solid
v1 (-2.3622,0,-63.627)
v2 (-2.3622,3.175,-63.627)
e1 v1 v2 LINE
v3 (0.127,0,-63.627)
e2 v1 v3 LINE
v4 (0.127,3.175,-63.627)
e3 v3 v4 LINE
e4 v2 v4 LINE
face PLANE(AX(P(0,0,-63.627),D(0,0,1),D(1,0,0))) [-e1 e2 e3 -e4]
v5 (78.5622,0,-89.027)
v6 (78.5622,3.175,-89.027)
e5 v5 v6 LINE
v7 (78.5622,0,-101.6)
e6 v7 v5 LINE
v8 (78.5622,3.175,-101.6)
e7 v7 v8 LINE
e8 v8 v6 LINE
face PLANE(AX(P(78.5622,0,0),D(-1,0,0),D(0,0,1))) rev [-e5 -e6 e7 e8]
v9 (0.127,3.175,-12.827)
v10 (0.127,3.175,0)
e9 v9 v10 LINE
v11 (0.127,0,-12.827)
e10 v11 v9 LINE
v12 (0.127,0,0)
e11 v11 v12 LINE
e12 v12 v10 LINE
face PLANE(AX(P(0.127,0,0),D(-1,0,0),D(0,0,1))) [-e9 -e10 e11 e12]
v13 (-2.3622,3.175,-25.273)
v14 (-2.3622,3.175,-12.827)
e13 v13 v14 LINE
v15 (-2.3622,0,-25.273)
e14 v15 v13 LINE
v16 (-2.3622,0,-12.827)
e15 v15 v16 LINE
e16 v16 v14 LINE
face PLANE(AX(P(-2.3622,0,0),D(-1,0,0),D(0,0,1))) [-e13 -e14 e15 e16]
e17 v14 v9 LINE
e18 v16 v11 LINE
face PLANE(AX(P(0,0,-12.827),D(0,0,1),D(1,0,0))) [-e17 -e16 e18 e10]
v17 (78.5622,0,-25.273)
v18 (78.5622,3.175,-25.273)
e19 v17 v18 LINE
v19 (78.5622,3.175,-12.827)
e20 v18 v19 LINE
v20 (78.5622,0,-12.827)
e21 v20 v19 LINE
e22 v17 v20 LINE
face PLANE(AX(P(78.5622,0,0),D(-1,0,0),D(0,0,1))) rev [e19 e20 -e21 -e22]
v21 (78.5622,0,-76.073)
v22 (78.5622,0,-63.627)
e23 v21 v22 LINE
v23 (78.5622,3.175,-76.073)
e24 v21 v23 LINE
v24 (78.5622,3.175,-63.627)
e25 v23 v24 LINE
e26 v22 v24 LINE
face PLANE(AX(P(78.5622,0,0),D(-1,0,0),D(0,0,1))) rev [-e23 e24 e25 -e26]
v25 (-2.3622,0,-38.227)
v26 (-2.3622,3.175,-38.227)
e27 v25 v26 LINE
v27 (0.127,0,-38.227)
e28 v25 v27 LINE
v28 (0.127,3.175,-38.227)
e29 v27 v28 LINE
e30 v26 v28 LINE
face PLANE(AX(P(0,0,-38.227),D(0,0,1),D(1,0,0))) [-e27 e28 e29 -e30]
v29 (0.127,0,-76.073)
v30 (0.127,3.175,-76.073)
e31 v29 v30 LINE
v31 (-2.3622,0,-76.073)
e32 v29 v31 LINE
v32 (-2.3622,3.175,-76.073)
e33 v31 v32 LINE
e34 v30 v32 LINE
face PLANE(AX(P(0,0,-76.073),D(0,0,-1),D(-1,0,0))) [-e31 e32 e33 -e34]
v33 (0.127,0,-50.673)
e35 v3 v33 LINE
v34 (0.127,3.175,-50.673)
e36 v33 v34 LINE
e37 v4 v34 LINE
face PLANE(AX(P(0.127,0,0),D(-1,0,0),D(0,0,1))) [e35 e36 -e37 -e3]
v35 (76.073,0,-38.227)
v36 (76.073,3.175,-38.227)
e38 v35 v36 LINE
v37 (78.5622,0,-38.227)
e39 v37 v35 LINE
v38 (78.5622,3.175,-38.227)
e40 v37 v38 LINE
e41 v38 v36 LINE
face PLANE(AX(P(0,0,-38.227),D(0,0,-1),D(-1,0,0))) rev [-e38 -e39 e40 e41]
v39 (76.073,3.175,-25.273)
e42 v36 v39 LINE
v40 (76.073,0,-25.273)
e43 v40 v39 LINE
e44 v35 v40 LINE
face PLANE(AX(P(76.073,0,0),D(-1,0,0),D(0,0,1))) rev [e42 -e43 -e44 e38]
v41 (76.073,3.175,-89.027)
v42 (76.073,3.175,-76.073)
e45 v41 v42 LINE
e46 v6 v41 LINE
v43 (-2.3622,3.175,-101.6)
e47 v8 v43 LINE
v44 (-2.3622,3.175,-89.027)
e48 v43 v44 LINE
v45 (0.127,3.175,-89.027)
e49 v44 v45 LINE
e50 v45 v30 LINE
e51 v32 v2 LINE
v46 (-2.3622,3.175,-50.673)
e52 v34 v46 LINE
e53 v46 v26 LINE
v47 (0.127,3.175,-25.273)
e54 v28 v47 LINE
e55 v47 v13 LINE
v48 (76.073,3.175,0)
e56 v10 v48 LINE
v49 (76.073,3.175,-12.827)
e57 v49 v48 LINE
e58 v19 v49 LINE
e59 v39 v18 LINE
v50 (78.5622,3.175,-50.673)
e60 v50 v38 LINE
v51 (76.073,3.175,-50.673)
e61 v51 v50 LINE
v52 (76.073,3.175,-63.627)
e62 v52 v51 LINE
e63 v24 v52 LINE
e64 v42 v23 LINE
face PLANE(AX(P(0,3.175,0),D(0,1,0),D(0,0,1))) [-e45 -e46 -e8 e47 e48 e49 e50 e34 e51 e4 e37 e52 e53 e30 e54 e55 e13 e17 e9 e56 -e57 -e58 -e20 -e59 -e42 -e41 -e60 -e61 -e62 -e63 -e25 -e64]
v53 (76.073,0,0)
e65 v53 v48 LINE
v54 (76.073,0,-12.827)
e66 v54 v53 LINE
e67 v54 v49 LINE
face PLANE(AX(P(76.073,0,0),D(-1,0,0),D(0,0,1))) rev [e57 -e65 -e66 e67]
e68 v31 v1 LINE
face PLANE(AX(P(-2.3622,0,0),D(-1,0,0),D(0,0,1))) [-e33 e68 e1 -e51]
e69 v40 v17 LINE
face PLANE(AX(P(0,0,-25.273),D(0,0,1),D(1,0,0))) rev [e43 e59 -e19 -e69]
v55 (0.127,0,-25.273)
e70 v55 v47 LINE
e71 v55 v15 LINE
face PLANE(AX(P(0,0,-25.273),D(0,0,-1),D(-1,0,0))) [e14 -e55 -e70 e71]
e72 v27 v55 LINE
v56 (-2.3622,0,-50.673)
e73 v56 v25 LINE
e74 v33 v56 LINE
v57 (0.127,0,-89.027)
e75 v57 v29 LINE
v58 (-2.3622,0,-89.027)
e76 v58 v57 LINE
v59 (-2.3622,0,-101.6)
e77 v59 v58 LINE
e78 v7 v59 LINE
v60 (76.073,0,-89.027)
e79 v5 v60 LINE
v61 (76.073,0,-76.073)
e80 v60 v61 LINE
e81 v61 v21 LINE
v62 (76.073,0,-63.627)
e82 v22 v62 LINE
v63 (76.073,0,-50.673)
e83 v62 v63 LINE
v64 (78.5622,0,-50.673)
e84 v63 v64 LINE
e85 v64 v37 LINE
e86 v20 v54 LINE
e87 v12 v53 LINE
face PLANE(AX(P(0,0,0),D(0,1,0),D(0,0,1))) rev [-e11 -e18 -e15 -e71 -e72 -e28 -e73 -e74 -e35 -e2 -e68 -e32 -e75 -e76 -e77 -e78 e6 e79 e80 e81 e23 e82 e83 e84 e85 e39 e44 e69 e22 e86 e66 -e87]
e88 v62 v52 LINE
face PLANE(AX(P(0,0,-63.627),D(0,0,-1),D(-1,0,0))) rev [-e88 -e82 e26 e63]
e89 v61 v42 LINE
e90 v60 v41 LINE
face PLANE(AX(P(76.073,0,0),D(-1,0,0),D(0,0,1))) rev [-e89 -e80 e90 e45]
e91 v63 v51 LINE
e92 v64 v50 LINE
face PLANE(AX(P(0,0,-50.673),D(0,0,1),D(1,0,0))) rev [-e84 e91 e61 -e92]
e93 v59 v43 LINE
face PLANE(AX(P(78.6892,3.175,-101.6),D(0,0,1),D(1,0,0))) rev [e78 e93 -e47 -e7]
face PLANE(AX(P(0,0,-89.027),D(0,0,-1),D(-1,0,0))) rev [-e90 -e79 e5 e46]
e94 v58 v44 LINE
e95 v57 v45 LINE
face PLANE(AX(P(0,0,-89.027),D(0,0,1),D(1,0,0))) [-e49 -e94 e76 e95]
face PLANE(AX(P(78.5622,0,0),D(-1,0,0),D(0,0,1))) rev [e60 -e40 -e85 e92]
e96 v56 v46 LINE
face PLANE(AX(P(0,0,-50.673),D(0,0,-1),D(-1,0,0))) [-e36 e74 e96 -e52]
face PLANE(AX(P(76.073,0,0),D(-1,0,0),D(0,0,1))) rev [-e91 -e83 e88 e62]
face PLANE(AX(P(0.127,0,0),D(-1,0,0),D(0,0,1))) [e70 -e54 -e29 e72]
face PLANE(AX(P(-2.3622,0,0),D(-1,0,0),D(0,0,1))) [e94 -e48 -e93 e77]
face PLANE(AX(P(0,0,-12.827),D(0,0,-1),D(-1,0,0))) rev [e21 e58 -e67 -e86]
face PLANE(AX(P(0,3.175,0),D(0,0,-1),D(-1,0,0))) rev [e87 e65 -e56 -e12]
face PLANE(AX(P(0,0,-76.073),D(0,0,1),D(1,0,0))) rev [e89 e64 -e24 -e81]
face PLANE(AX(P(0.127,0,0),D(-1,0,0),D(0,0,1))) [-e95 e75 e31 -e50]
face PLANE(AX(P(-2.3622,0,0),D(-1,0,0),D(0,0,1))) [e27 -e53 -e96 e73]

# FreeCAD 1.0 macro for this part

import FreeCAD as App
import Part
import Sketcher
from FreeCAD import Vector
Q = App.Units.Quantity

doc = App.newDocument("Part")
body = doc.addObject("PartDesign::Body", "Body")

sketch1 = body.newObject("Sketcher::SketchObject", "Sketch")
sketch1.AttachmentSupport = (doc.getObject("XZ_Plane"), [""])
sketch1.MapMode = "FlatFace"
sketch1.addGeometry(Part.LineSegment(Vector(0, 0, 0), Vector(76.2, 0, 0)), False)
sketch1.addGeometry(Part.LineSegment(Vector(76.2, 0, 0), Vector(76.2, -12.7, 0)), False)
sketch1.addGeometry(Part.LineSegment(Vector(76.2, -12.7, 0), Vector(78.7, -12.7, 0)), False)
sketch1.addGeometry(Part.LineSegment(Vector(78.7, -12.7, 0), Vector(78.7, -25.4, 0)), False)
sketch1.addGeometry(Part.LineSegment(Vector(78.7, -25.4, 0), Vector(76.2, -25.4, 0)), False)
sketch1.addGeometry(Part.LineSegment(Vector(76.2, -25.4, 0), Vector(76.2, -38.1, 0)), False)
sketch1.addGeometry(Part.LineSegment(Vector(76.2, -38.1, 0), Vector(78.7, -38.1, 0)), False)
sketch1.addGeometry(Part.LineSegment(Vector(78.7, -38.1, 0), Vector(78.7, -50.8, 0)), False)
sketch1.addGeometry(Part.LineSegment(Vector(78.7, -50.8, 0), Vector(76.2, -50.8, 0)), False)
sketch1.addGeometry(Part.LineSegment(Vector(76.2, -50.8, 0), Vector(76.2, -63.5, 0)), False)
sketch1.addGeometry(Part.LineSegment(Vector(76.2, -63.5, 0), Vector(78.7, -63.5, 0)), False)
sketch1.addGeometry(Part.LineSegment(Vector(78.7, -63.5, 0), Vector(78.7, -76.2, 0)), False)
sketch1.addGeometry(Part.LineSegment(Vector(78.7, -76.2, 0), Vector(76.2, -76.2, 0)), False)
sketch1.addGeometry(Part.LineSegment(Vector(76.2, -76.2, 0), Vector(76.2, -88.9, 0)), False)
sketch1.addGeometry(Part.LineSegment(Vector(76.2, -88.9, 0), Vector(78.7, -88.9, 0)), False)
sketch1.addGeometry(Part.LineSegment(Vector(78.7, -88.9, 0), Vector(78.7, -101.6, 0)), False)
sketch1.addGeometry(Part.LineSegment(Vector(78.7, -101.6, 0), Vector(-2.5, -101.6, 0)), False)
sketch1.addGeometry(Part.LineSegment(Vector(-2.5, -101.6, 0), Vector(-2.5, -88.9, 0)), False)
sketch1.addGeometry(Part.LineSegment(Vector(-2.5, -88.9, 0), Vector(0, -88.9, 0)), False)
sketch1.addGeometry(Part.LineSegment(Vector(0, -88.9, 0), Vector(0, -76.2, 0)), False)
sketch1.addGeometry(Part.LineSegment(Vector(0, -76.2, 0), Vector(-2.5, -76.2, 0)), False)
sketch1.addGeometry(Part.LineSegment(Vector(-2.5, -76.2, 0), Vector(-2.5, -63.5, 0)), False)
sketch1.addGeometry(Part.LineSegment(Vector(-2.5, -63.5, 0), Vector(0, -63.5, 0)), False)
sketch1.addGeometry(Part.LineSegment(Vector(0, -63.5, 0), Vector(0, -50.8, 0)), False)
sketch1.addGeometry(Part.LineSegment(Vector(0, -50.8, 0), Vector(-2.5, -50.8, 0)), False)
sketch1.addGeometry(Part.LineSegment(Vector(-2.5, -50.8, 0), Vector(-2.5, -38.1, 0)), False)
sketch1.addGeometry(Part.LineSegment(Vector(-2.5, -38.1, 0), Vector(0, -38.1, 0)), False)
sketch1.addGeometry(Part.LineSegment(Vector(0, -38.1, 0), Vector(0, -25.4, 0)), False)
sketch1.addGeometry(Part.LineSegment(Vector(0, -25.4, 0), Vector(-2.5, -25.4, 0)), False)
sketch1.addGeometry(Part.LineSegment(Vector(-2.5, -25.4, 0), Vector(-2.5, -12.7, 0)), False)
sketch1.addGeometry(Part.LineSegment(Vector(-2.5, -12.7, 0), Vector(0, -12.7, 0)), False)
sketch1.addGeometry(Part.LineSegment(Vector(0, -12.7, 0), Vector(0, 0, 0)), False)
sketch1.addConstraint(Sketcher.Constraint("Coincident", 0, 2, 1, 1))
sketch1.addConstraint(Sketcher.Constraint("Coincident", 1, 2, 2, 1))
sketch1.addConstraint(Sketcher.Constraint("Coincident", 2, 2, 3, 1))
sketch1.addConstraint(Sketcher.Constraint("Coincident", 3, 2, 4, 1))
sketch1.addConstraint(Sketcher.Constraint("Coincident", 4, 2, 5, 1))
sketch1.addConstraint(Sketcher.Constraint("Coincident", 5, 2, 6, 1))
sketch1.addConstraint(Sketcher.Constraint("Coincident", 6, 2, 7, 1))
sketch1.addConstraint(Sketcher.Constraint("Coincident", 7, 2, 8, 1))
sketch1.addConstraint(Sketcher.Constraint("Coincident", 8, 2, 9, 1))
sketch1.addConstraint(Sketcher.Constraint("Coincident", 9, 2, 10, 1))
sketch1.addConstraint(Sketcher.Constraint("Coincident", 10, 2, 11, 1))
sketch1.addConstraint(Sketcher.Constraint("Coincident", 11, 2, 12, 1))
sketch1.addConstraint(Sketcher.Constraint("Coincident", 12, 2, 13, 1))
sketch1.addConstraint(Sketcher.Constraint("Coincident", 13, 2, 14, 1))
sketch1.addConstraint(Sketcher.Constraint("Coincident", 14, 2, 15, 1))
sketch1.addConstraint(Sketcher.Constraint("Coincident", 15, 2, 16, 1))
sketch1.addConstraint(Sketcher.Constraint("Coincident", 16, 2, 17, 1))
sketch1.addConstraint(Sketcher.Constraint("Coincident", 17, 2, 18, 1))
sketch1.addConstraint(Sketcher.Constraint("Coincident", 18, 2, 19, 1))
sketch1.addConstraint(Sketcher.Constraint("Coincident", 19, 2, 20, 1))
sketch1.addConstraint(Sketcher.Constraint("Coincident", 20, 2, 21, 1))
sketch1.addConstraint(Sketcher.Constraint("Coincident", 21, 2, 22, 1))
sketch1.addConstraint(Sketcher.Constraint("Coincident", 22, 2, 23, 1))
sketch1.addConstraint(Sketcher.Constraint("Coincident", 23, 2, 24, 1))
sketch1.addConstraint(Sketcher.Constraint("Coincident", 24, 2, 25, 1))
sketch1.addConstraint(Sketcher.Constraint("Coincident", 25, 2, 26, 1))
sketch1.addConstraint(Sketcher.Constraint("Coincident", 26, 2, 27, 1))
sketch1.addConstraint(Sketcher.Constraint("Coincident", 27, 2, 28, 1))
sketch1.addConstraint(Sketcher.Constraint("Coincident", 28, 2, 29, 1))
sketch1.addConstraint(Sketcher.Constraint("Coincident", 29, 2, 30, 1))
sketch1.addConstraint(Sketcher.Constraint("Coincident", 30, 2, 31, 1))
sketch1.addConstraint(Sketcher.Constraint("Coincident", 31, 2, 0, 1))
sketch1.addConstraint(Sketcher.Constraint("Horizontal", 0))
sketch1.addConstraint(Sketcher.Constraint("Vertical", 1))
sketch1.addConstraint(Sketcher.Constraint("Horizontal", 2))
sketch1.addConstraint(Sketcher.Constraint("Vertical", 3))
sketch1.addConstraint(Sketcher.Constraint("Horizontal", 4))
sketch1.addConstraint(Sketcher.Constraint("Vertical", 5))
sketch1.addConstraint(Sketcher.Constraint("Horizontal", 6))
sketch1.addConstraint(Sketcher.Constraint("Vertical", 7))
sketch1.addConstraint(Sketcher.Constraint("Horizontal", 8))
sketch1.addConstraint(Sketcher.Constraint("Vertical", 9))
sketch1.addConstraint(Sketcher.Constraint("Horizontal", 10))
sketch1.addConstraint(Sketcher.Constraint("Vertical", 11))
sketch1.addConstraint(Sketcher.Constraint("Horizontal", 12))
sketch1.addConstraint(Sketcher.Constraint("Vertical", 13))
sketch1.addConstraint(Sketcher.Constraint("Horizontal", 14))
sketch1.addConstraint(Sketcher.Constraint("Vertical", 15))
sketch1.addConstraint(Sketcher.Constraint("Horizontal", 16))
sketch1.addConstraint(Sketcher.Constraint("Vertical", 17))
sketch1.addConstraint(Sketcher.Constraint("Horizontal", 18))
sketch1.addConstraint(Sketcher.Constraint("Vertical", 19))
sketch1.addConstraint(Sketcher.Constraint("Horizontal", 20))
sketch1.addConstraint(Sketcher.Constraint("Vertical", 21))
sketch1.addConstraint(Sketcher.Constraint("Horizontal", 22))
sketch1.addConstraint(Sketcher.Constraint("Vertical", 23))
sketch1.addConstraint(Sketcher.Constraint("Horizontal", 24))
sketch1.addConstraint(Sketcher.Constraint("Vertical", 25))
sketch1.addConstraint(Sketcher.Constraint("Horizontal", 26))
sketch1.addConstraint(Sketcher.Constraint("Vertical", 27))
sketch1.addConstraint(Sketcher.Constraint("Horizontal", 28))
sketch1.addConstraint(Sketcher.Constraint("Vertical", 29))
sketch1.addConstraint(Sketcher.Constraint("Horizontal", 30))
sketch1.addConstraint(Sketcher.Constraint("Vertical", 31))
sketch1.addConstraint(Sketcher.Constraint("Coincident", 31, 2, -1, 1))
sketch1.addConstraint(Sketcher.Constraint("PointOnObject", 18, 2, -2))
sketch1.addConstraint(Sketcher.Constraint("PointOnObject", 22, 2, -2))
sketch1.addConstraint(Sketcher.Constraint("PointOnObject", 26, 2, -2))
sketch1.addConstraint(Sketcher.Constraint("Horizontal", 14, 2, 17, 2))
sketch1.addConstraint(Sketcher.Constraint("Horizontal", 12, 2, 19, 2))
sketch1.addConstraint(Sketcher.Constraint("Horizontal", 10, 2, 21, 2))
sketch1.addConstraint(Sketcher.Constraint("Horizontal", 8, 2, 23, 2))
sketch1.addConstraint(Sketcher.Constraint("Horizontal", 6, 2, 25, 2))
sketch1.addConstraint(Sketcher.Constraint("Horizontal", 4, 2, 27, 2))
sketch1.addConstraint(Sketcher.Constraint("Horizontal", 2, 2, 29, 2))
sketch1.addConstraint(Sketcher.Constraint("Vertical", 1, 2, 4, 2))
sketch1.addConstraint(Sketcher.Constraint("Vertical", 3, 2, 6, 2))
sketch1.addConstraint(Sketcher.Constraint("Vertical", 5, 2, 8, 2))
sketch1.addConstraint(Sketcher.Constraint("Vertical", 7, 2, 10, 2))
sketch1.addConstraint(Sketcher.Constraint("Vertical", 9, 2, 12, 2))
sketch1.addConstraint(Sketcher.Constraint("Vertical", 11, 2, 14, 2))
sketch1.addConstraint(Sketcher.Constraint("Vertical", 17, 2, 20, 2))
sketch1.addConstraint(Sketcher.Constraint("Vertical", 21, 2, 24, 2))
sketch1.addConstraint(Sketcher.Constraint("Vertical", 25, 2, 28, 2))
sketch1.addConstraint(Sketcher.Constraint("Equal", 14, 18))
sketch1.addConstraint(Sketcher.Constraint("Equal", 1, 3))
sketch1.addConstraint(Sketcher.Constraint("Equal", 3, 5))
sketch1.addConstraint(Sketcher.Constraint("Equal", 5, 7))
sketch1.addConstraint(Sketcher.Constraint("Equal", 7, 9))
sketch1.addConstraint(Sketcher.Constraint("Equal", 9, 11))
sketch1.addConstraint(Sketcher.Constraint("Equal", 11, 13))
sketch1.addConstraint(Sketcher.Constraint("Equal", 13, 15))
sketch1.addConstraint(Sketcher.Constraint("DistanceX", 0, 1, 0, 2, Q("3 in")))
sketch1.addConstraint(Sketcher.Constraint("DistanceY", 1, 2, 1, 1, Q("0.5 in")))
sketch1.addConstraint(Sketcher.Constraint("DistanceX", 2, 1, 2, 2, Q("0.098 in")))
pad1 = body.newObject("PartDesign::Pad", "Pad")
pad1.Profile = sketch1
pad1.Length = Q("0.125 in")
pad1.Reversed = True

sketch2 = body.newObject("Sketcher::SketchObject", "Sketch001")
sketch2.AttachmentSupport = (doc.getObject("XZ_Plane"), [""])
sketch2.MapMode = "FlatFace"
sketch2.AttachmentOffset = App.Placement(Vector(0, 0, -0.125 * 25.4), App.Rotation())
sketch2.addGeometry(Part.LineSegment(Vector(78.69, -101.6, 0), Vector(78.56, -101.6, 0)), False)
sketch2.addGeometry(Part.LineSegment(Vector(78.56, -101.6, 0), Vector(78.56, -89.03, 0)), False)
sketch2.addGeometry(Part.LineSegment(Vector(78.56, -89.03, 0), Vector(76.07, -89.03, 0)), False)
sketch2.addGeometry(Part.LineSegment(Vector(76.07, -89.03, 0), Vector(76.07, -76.07, 0)), False)
sketch2.addGeometry(Part.LineSegment(Vector(76.07, -76.07, 0), Vector(78.56, -76.07, 0)), False)
sketch2.addGeometry(Part.LineSegment(Vector(78.56, -76.07, 0), Vector(78.56, -63.63, 0)), False)
sketch2.addGeometry(Part.LineSegment(Vector(78.56, -63.63, 0), Vector(76.07, -63.63, 0)), False)
sketch2.addGeometry(Part.LineSegment(Vector(76.07, -63.63, 0), Vector(76.07, -50.67, 0)), False)
sketch2.addGeometry(Part.LineSegment(Vector(76.07, -50.67, 0), Vector(78.56, -50.67, 0)), False)
sketch2.addGeometry(Part.LineSegment(Vector(78.56, -50.67, 0), Vector(78.56, -38.23, 0)), False)
sketch2.addGeometry(Part.LineSegment(Vector(78.56, -38.23, 0), Vector(76.07, -38.23, 0)), False)
sketch2.addGeometry(Part.LineSegment(Vector(76.07, -38.23, 0), Vector(76.07, -25.27, 0)), False)
sketch2.addGeometry(Part.LineSegment(Vector(76.07, -25.27, 0), Vector(78.56, -25.27, 0)), False)
sketch2.addGeometry(Part.LineSegment(Vector(78.56, -25.27, 0), Vector(78.56, -12.83, 0)), False)
sketch2.addGeometry(Part.LineSegment(Vector(78.56, -12.83, 0), Vector(76.07, -12.83, 0)), False)
sketch2.addGeometry(Part.LineSegment(Vector(76.07, -12.83, 0), Vector(76.07, 0, 0)), False)
sketch2.addGeometry(Part.LineSegment(Vector(76.07, 0, 0), Vector(76.2, 0, 0)), False)
sketch2.addGeometry(Part.LineSegment(Vector(76.2, 0, 0), Vector(76.2, -12.7, 0)), False)
sketch2.addGeometry(Part.LineSegment(Vector(76.2, -12.7, 0), Vector(78.69, -12.7, 0)), False)
sketch2.addGeometry(Part.LineSegment(Vector(78.69, -12.7, 0), Vector(78.69, -25.4, 0)), False)
sketch2.addGeometry(Part.LineSegment(Vector(78.69, -25.4, 0), Vector(76.2, -25.4, 0)), False)
sketch2.addGeometry(Part.LineSegment(Vector(76.2, -25.4, 0), Vector(76.2, -38.1, 0)), False)
sketch2.addGeometry(Part.LineSegment(Vector(76.2, -38.1, 0), Vector(78.69, -38.1, 0)), False)
sketch2.addGeometry(Part.LineSegment(Vector(78.69, -38.1, 0), Vector(78.69, -50.8, 0)), False)
sketch2.addGeometry(Part.LineSegment(Vector(78.69, -50.8, 0), Vector(76.2, -50.8, 0)), False)
sketch2.addGeometry(Part.LineSegment(Vector(76.2, -50.8, 0), Vector(76.2, -63.5, 0)), False)
sketch2.addGeometry(Part.LineSegment(Vector(76.2, -63.5, 0), Vector(78.69, -63.5, 0)), False)
sketch2.addGeometry(Part.LineSegment(Vector(78.69, -63.5, 0), Vector(78.69, -76.2, 0)), False)
sketch2.addGeometry(Part.LineSegment(Vector(78.69, -76.2, 0), Vector(76.2, -76.2, 0)), False)
sketch2.addGeometry(Part.LineSegment(Vector(76.2, -76.2, 0), Vector(76.2, -88.9, 0)), False)
sketch2.addGeometry(Part.LineSegment(Vector(76.2, -88.9, 0), Vector(78.69, -88.9, 0)), False)
sketch2.addGeometry(Part.LineSegment(Vector(78.69, -88.9, 0), Vector(78.69, -101.6, 0)), False)
sketch2.addGeometry(Part.LineSegment(Vector(-2.36, -101.6, 0), Vector(-2.49, -101.6, 0)), False)
sketch2.addGeometry(Part.LineSegment(Vector(-2.49, -101.6, 0), Vector(-2.49, -88.9, 0)), False)
sketch2.addGeometry(Part.LineSegment(Vector(-2.49, -88.9, 0), Vector(0, -88.9, 0)), False)
sketch2.addGeometry(Part.LineSegment(Vector(0, -88.9, 0), Vector(0, -76.2, 0)), False)
sketch2.addGeometry(Part.LineSegment(Vector(0, -76.2, 0), Vector(-2.49, -76.2, 0)), False)
sketch2.addGeometry(Part.LineSegment(Vector(-2.49, -76.2, 0), Vector(-2.49, -63.5, 0)), False)
sketch2.addGeometry(Part.LineSegment(Vector(-2.49, -63.5, 0), Vector(0, -63.5, 0)), False)
sketch2.addGeometry(Part.LineSegment(Vector(0, -63.5, 0), Vector(0, -50.8, 0)), False)
sketch2.addGeometry(Part.LineSegment(Vector(0, -50.8, 0), Vector(-2.49, -50.8, 0)), False)
sketch2.addGeometry(Part.LineSegment(Vector(-2.49, -50.8, 0), Vector(-2.49, -38.1, 0)), False)
sketch2.addGeometry(Part.LineSegment(Vector(-2.49, -38.1, 0), Vector(0, -38.1, 0)), False)
sketch2.addGeometry(Part.LineSegment(Vector(0, -38.1, 0), Vector(0, -25.4, 0)), False)
sketch2.addGeometry(Part.LineSegment(Vector(0, -25.4, 0), Vector(-2.49, -25.4, 0)), False)
sketch2.addGeometry(Part.LineSegment(Vector(-2.49, -25.4, 0), Vector(-2.49, -12.7, 0)), False)
sketch2.addGeometry(Part.LineSegment(Vector(-2.49, -12.7, 0), Vector(0, -12.7, 0)), False)
sketch2.addGeometry(Part.LineSegment(Vector(0, -12.7, 0), Vector(0, 0, 0)), False)
sketch2.addGeometry(Part.LineSegment(Vector(0, 0, 0), Vector(0.13, 0, 0)), False)
sketch2.addGeometry(Part.LineSegment(Vector(0.13, 0, 0), Vector(0.13, -12.83, 0)), False)
sketch2.addGeometry(Part.LineSegment(Vector(0.13, -12.83, 0), Vector(-2.36, -12.83, 0)), False)
sketch2.addGeometry(Part.LineSegment(Vector(-2.36, -12.83, 0), Vector(-2.36, -25.27, 0)), False)
sketch2.addGeometry(Part.LineSegment(Vector(-2.36, -25.27, 0), Vector(0.13, -25.27, 0)), False)
sketch2.addGeometry(Part.LineSegment(Vector(0.13, -25.27, 0), Vector(0.13, -38.23, 0)), False)
sketch2.addGeometry(Part.LineSegment(Vector(0.13, -38.23, 0), Vector(-2.36, -38.23, 0)), False)
sketch2.addGeometry(Part.LineSegment(Vector(-2.36, -38.23, 0), Vector(-2.36, -50.67, 0)), False)
sketch2.addGeometry(Part.LineSegment(Vector(-2.36, -50.67, 0), Vector(0.13, -50.67, 0)), False)
sketch2.addGeometry(Part.LineSegment(Vector(0.13, -50.67, 0), Vector(0.13, -63.63, 0)), False)
sketch2.addGeometry(Part.LineSegment(Vector(0.13, -63.63, 0), Vector(-2.36, -63.63, 0)), False)
sketch2.addGeometry(Part.LineSegment(Vector(-2.36, -63.63, 0), Vector(-2.36, -76.07, 0)), False)
sketch2.addGeometry(Part.LineSegment(Vector(-2.36, -76.07, 0), Vector(0.13, -76.07, 0)), False)
sketch2.addGeometry(Part.LineSegment(Vector(0.13, -76.07, 0), Vector(0.13, -89.03, 0)), False)
sketch2.addGeometry(Part.LineSegment(Vector(0.13, -89.03, 0), Vector(-2.36, -89.03, 0)), False)
sketch2.addGeometry(Part.LineSegment(Vector(-2.36, -89.03, 0), Vector(-2.36, -101.6, 0)), False)
sketch2.addConstraint(Sketcher.Constraint("Coincident", 0, 2, 1, 1))
sketch2.addConstraint(Sketcher.Constraint("Coincident", 1, 2, 2, 1))
sketch2.addConstraint(Sketcher.Constraint("Coincident", 2, 2, 3, 1))
sketch2.addConstraint(Sketcher.Constraint("Coincident", 3, 2, 4, 1))
sketch2.addConstraint(Sketcher.Constraint("Coincident", 4, 2, 5, 1))
sketch2.addConstraint(Sketcher.Constraint("Coincident", 5, 2, 6, 1))
sketch2.addConstraint(Sketcher.Constraint("Coincident", 6, 2, 7, 1))
sketch2.addConstraint(Sketcher.Constraint("Coincident", 7, 2, 8, 1))
sketch2.addConstraint(Sketcher.Constraint("Coincident", 8, 2, 9, 1))
sketch2.addConstraint(Sketcher.Constraint("Coincident", 9, 2, 10, 1))
sketch2.addConstraint(Sketcher.Constraint("Coincident", 10, 2, 11, 1))
sketch2.addConstraint(Sketcher.Constraint("Coincident", 11, 2, 12, 1))
sketch2.addConstraint(Sketcher.Constraint("Coincident", 12, 2, 13, 1))
sketch2.addConstraint(Sketcher.Constraint("Coincident", 13, 2, 14, 1))
sketch2.addConstraint(Sketcher.Constraint("Coincident", 14, 2, 15, 1))
sketch2.addConstraint(Sketcher.Constraint("Coincident", 15, 2, 16, 1))
sketch2.addConstraint(Sketcher.Constraint("Coincident", 16, 2, 17, 1))
sketch2.addConstraint(Sketcher.Constraint("Coincident", 17, 2, 18, 1))
sketch2.addConstraint(Sketcher.Constraint("Coincident", 18, 2, 19, 1))
sketch2.addConstraint(Sketcher.Constraint("Coincident", 19, 2, 20, 1))
sketch2.addConstraint(Sketcher.Constraint("Coincident", 20, 2, 21, 1))
sketch2.addConstraint(Sketcher.Constraint("Coincident", 21, 2, 22, 1))
sketch2.addConstraint(Sketcher.Constraint("Coincident", 22, 2, 23, 1))
sketch2.addConstraint(Sketcher.Constraint("Coincident", 23, 2, 24, 1))
sketch2.addConstraint(Sketcher.Constraint("Coincident", 24, 2, 25, 1))
sketch2.addConstraint(Sketcher.Constraint("Coincident", 25, 2, 26, 1))
sketch2.addConstraint(Sketcher.Constraint("Coincident", 26, 2, 27, 1))
sketch2.addConstraint(Sketcher.Constraint("Coincident", 27, 2, 28, 1))
sketch2.addConstraint(Sketcher.Constraint("Coincident", 28, 2, 29, 1))
sketch2.addConstraint(Sketcher.Constraint("Coincident", 29, 2, 30, 1))
sketch2.addConstraint(Sketcher.Constraint("Coincident", 30, 2, 31, 1))
sketch2.addConstraint(Sketcher.Constraint("Coincident", 31, 2, 0, 1))
sketch2.addConstraint(Sketcher.Constraint("Coincident", 32, 2, 33, 1))
sketch2.addConstraint(Sketcher.Constraint("Coincident", 33, 2, 34, 1))
sketch2.addConstraint(Sketcher.Constraint("Coincident", 34, 2, 35, 1))
sketch2.addConstraint(Sketcher.Constraint("Coincident", 35, 2, 36, 1))
sketch2.addConstraint(Sketcher.Constraint("Coincident", 36, 2, 37, 1))
sketch2.addConstraint(Sketcher.Constraint("Coincident", 37, 2, 38, 1))
sketch2.addConstraint(Sketcher.Constraint("Coincident", 38, 2, 39, 1))
sketch2.addConstraint(Sketcher.Constraint("Coincident", 39, 2, 40, 1))
sketch2.addConstraint(Sketcher.Constraint("Coincident", 40, 2, 41, 1))
sketch2.addConstraint(Sketcher.Constraint("Coincident", 41, 2, 42, 1))
sketch2.addConstraint(Sketcher.Constraint("Coincident", 42, 2, 43, 1))
sketch2.addConstraint(Sketcher.Constraint("Coincident", 43, 2, 44, 1))
sketch2.addConstraint(Sketcher.Constraint("Coincident", 44, 2, 45, 1))
sketch2.addConstraint(Sketcher.Constraint("Coincident", 45, 2, 46, 1))
sketch2.addConstraint(Sketcher.Constraint("Coincident", 46, 2, 47, 1))
sketch2.addConstraint(Sketcher.Constraint("Coincident", 47, 2, 48, 1))
sketch2.addConstraint(Sketcher.Constraint("Coincident", 48, 2, 49, 1))
sketch2.addConstraint(Sketcher.Constraint("Coincident", 49, 2, 50, 1))
sketch2.addConstraint(Sketcher.Constraint("Coincident", 50, 2, 51, 1))
sketch2.addConstraint(Sketcher.Constraint("Coincident", 51, 2, 52, 1))
sketch2.addConstraint(Sketcher.Constraint("Coincident", 52, 2, 53, 1))
sketch2.addConstraint(Sketcher.Constraint("Coincident", 53, 2, 54, 1))
sketch2.addConstraint(Sketcher.Constraint("Coincident", 54, 2, 55, 1))
sketch2.addConstraint(Sketcher.Constraint("Coincident", 55, 2, 56, 1))
sketch2.addConstraint(Sketcher.Constraint("Coincident", 56, 2, 57, 1))
sketch2.addConstraint(Sketcher.Constraint("Coincident", 57, 2, 58, 1))
sketch2.addConstraint(Sketcher.Constraint("Coincident", 58, 2, 59, 1))
sketch2.addConstraint(Sketcher.Constraint("Coincident", 59, 2, 60, 1))
sketch2.addConstraint(Sketcher.Constraint("Coincident", 60, 2, 61, 1))
sketch2.addConstraint(Sketcher.Constraint("Coincident", 61, 2, 62, 1))
sketch2.addConstraint(Sketcher.Constraint("Coincident", 62, 2, 63, 1))
sketch2.addConstraint(Sketcher.Constraint("Coincident", 63, 2, 32, 1))
sketch2.addConstraint(Sketcher.Constraint("Horizontal", 0))
sketch2.addConstraint(Sketcher.Constraint("Vertical", 1))
sketch2.addConstraint(Sketcher.Constraint("Horizontal", 2))
sketch2.addConstraint(Sketcher.Constraint("Vertical", 3))
sketch2.addConstraint(Sketcher.Constraint("Horizontal", 4))
sketch2.addConstraint(Sketcher.Constraint("Vertical", 5))
sketch2.addConstraint(Sketcher.Constraint("Horizontal", 6))
sketch2.addConstraint(Sketcher.Constraint("Vertical", 7))
sketch2.addConstraint(Sketcher.Constraint("Horizontal", 8))
sketch2.addConstraint(Sketcher.Constraint("Vertical", 9))
sketch2.addConstraint(Sketcher.Constraint("Horizontal", 10))
sketch2.addConstraint(Sketcher.Constraint("Vertical", 11))
sketch2.addConstraint(Sketcher.Constraint("Horizontal", 12))
sketch2.addConstraint(Sketcher.Constraint("Vertical", 13))
sketch2.addConstraint(Sketcher.Constraint("Horizontal", 14))
sketch2.addConstraint(Sketcher.Constraint("Vertical", 15))
sketch2.addConstraint(Sketcher.Constraint("Horizontal", 16))
sketch2.addConstraint(Sketcher.Constraint("Vertical", 17))
sketch2.addConstraint(Sketcher.Constraint("Horizontal", 18))
sketch2.addConstraint(Sketcher.Constraint("Vertical", 19))
sketch2.addConstraint(Sketcher.Constraint("Horizontal", 20))
sketch2.addConstraint(Sketcher.Constraint("Vertical", 21))
sketch2.addConstraint(Sketcher.Constraint("Horizontal", 22))
sketch2.addConstraint(Sketcher.Constraint("Vertical", 23))
sketch2.addConstraint(Sketcher.Constraint("Horizontal", 24))
sketch2.addConstraint(Sketcher.Constraint("Vertical", 25))
sketch2.addConstraint(Sketcher.Constraint("Horizontal", 26))
sketch2.addConstraint(Sketcher.Constraint("Vertical", 27))
sketch2.addConstraint(Sketcher.Constraint("Horizontal", 28))
sketch2.addConstraint(Sketcher.Constraint("Vertical", 29))
sketch2.addConstraint(Sketcher.Constraint("Horizontal", 30))
sketch2.addConstraint(Sketcher.Constraint("Vertical", 31))
sketch2.addConstraint(Sketcher.Constraint("Horizontal", 32))
sketch2.addConstraint(Sketcher.Constraint("Vertical", 33))
sketch2.addConstraint(Sketcher.Constraint("Horizontal", 34))
sketch2.addConstraint(Sketcher.Constraint("Vertical", 35))
sketch2.addConstraint(Sketcher.Constraint("Horizontal", 36))
sketch2.addConstraint(Sketcher.Constraint("Vertical", 37))
sketch2.addConstraint(Sketcher.Constraint("Horizontal", 38))
sketch2.addConstraint(Sketcher.Constraint("Vertical", 39))
sketch2.addConstraint(Sketcher.Constraint("Horizontal", 40))
sketch2.addConstraint(Sketcher.Constraint("Vertical", 41))
sketch2.addConstraint(Sketcher.Constraint("Horizontal", 42))
sketch2.addConstraint(Sketcher.Constraint("Vertical", 43))
sketch2.addConstraint(Sketcher.Constraint("Horizontal", 44))
sketch2.addConstraint(Sketcher.Constraint("Vertical", 45))
sketch2.addConstraint(Sketcher.Constraint("Horizontal", 46))
sketch2.addConstraint(Sketcher.Constraint("Vertical", 47))
sketch2.addConstraint(Sketcher.Constraint("Horizontal", 48))
sketch2.addConstraint(Sketcher.Constraint("Vertical", 49))
sketch2.addConstraint(Sketcher.Constraint("Horizontal", 50))
sketch2.addConstraint(Sketcher.Constraint("Vertical", 51))
sketch2.addConstraint(Sketcher.Constraint("Horizontal", 52))
sketch2.addConstraint(Sketcher.Constraint("Vertical", 53))
sketch2.addConstraint(Sketcher.Constraint("Horizontal", 54))
sketch2.addConstraint(Sketcher.Constraint("Vertical", 55))
sketch2.addConstraint(Sketcher.Constraint("Horizontal", 56))
sketch2.addConstraint(Sketcher.Constraint("Vertical", 57))
sketch2.addConstraint(Sketcher.Constraint("Horizontal", 58))
sketch2.addConstraint(Sketcher.Constraint("Vertical", 59))
sketch2.addConstraint(Sketcher.Constraint("Horizontal", 60))
sketch2.addConstraint(Sketcher.Constraint("Vertical", 61))
sketch2.addConstraint(Sketcher.Constraint("Horizontal", 62))
sketch2.addConstraint(Sketcher.Constraint("Vertical", 63))
sketch2.addConstraint(Sketcher.Constraint("Coincident", 47, 2, -1, 1))
sketch2.addConstraint(Sketcher.Constraint("PointOnObject", 15, 2, -1))
sketch2.addConstraint(Sketcher.Constraint("PointOnObject", 34, 2, -2))
sketch2.addConstraint(Sketcher.Constraint("PointOnObject", 38, 2, -2))
sketch2.addConstraint(Sketcher.Constraint("PointOnObject", 42, 2, -2))
sketch2.addConstraint(Sketcher.Constraint("Horizontal", 31, 2, 32, 2))
sketch2.addConstraint(Sketcher.Constraint("Horizontal", 30, 2, 33, 2))
sketch2.addConstraint(Sketcher.Constraint("Horizontal", 28, 2, 35, 2))
sketch2.addConstraint(Sketcher.Constraint("Horizontal", 26, 2, 37, 2))
sketch2.addConstraint(Sketcher.Constraint("Horizontal", 24, 2, 39, 2))
sketch2.addConstraint(Sketcher.Constraint("Horizontal", 22, 2, 41, 2))
sketch2.addConstraint(Sketcher.Constraint("Horizontal", 20, 2, 43, 2))
sketch2.addConstraint(Sketcher.Constraint("Horizontal", 18, 2, 45, 2))
sketch2.addConstraint(Sketcher.Constraint("Horizontal", 14, 2, 49, 2))
sketch2.addConstraint(Sketcher.Constraint("Horizontal", 12, 2, 51, 2))
sketch2.addConstraint(Sketcher.Constraint("Horizontal", 10, 2, 53, 2))
sketch2.addConstraint(Sketcher.Constraint("Horizontal", 8, 2, 55, 2))
sketch2.addConstraint(Sketcher.Constraint("Horizontal", 6, 2, 57, 2))
sketch2.addConstraint(Sketcher.Constraint("Horizontal", 4, 2, 59, 2))
sketch2.addConstraint(Sketcher.Constraint("Horizontal", 2, 2, 61, 2))
sketch2.addConstraint(Sketcher.Constraint("Vertical", 1, 2, 4, 2))
sketch2.addConstraint(Sketcher.Constraint("Vertical", 3, 2, 6, 2))
sketch2.addConstraint(Sketcher.Constraint("Vertical", 5, 2, 8, 2))
sketch2.addConstraint(Sketcher.Constraint("Vertical", 7, 2, 10, 2))
sketch2.addConstraint(Sketcher.Constraint("Vertical", 9, 2, 12, 2))
sketch2.addConstraint(Sketcher.Constraint("Vertical", 11, 2, 14, 2))
sketch2.addConstraint(Sketcher.Constraint("Vertical", 17, 2, 20, 2))
sketch2.addConstraint(Sketcher.Constraint("Vertical", 19, 2, 22, 2))
sketch2.addConstraint(Sketcher.Constraint("Vertical", 21, 2, 24, 2))
sketch2.addConstraint(Sketcher.Constraint("Vertical", 23, 2, 26, 2))
sketch2.addConstraint(Sketcher.Constraint("Vertical", 25, 2, 28, 2))
sketch2.addConstraint(Sketcher.Constraint("Vertical", 27, 2, 30, 2))
sketch2.addConstraint(Sketcher.Constraint("Vertical", 33, 2, 36, 2))
sketch2.addConstraint(Sketcher.Constraint("Vertical", 37, 2, 40, 2))
sketch2.addConstraint(Sketcher.Constraint("Vertical", 41, 2, 44, 2))
sketch2.addConstraint(Sketcher.Constraint("Vertical", 49, 2, 52, 2))
sketch2.addConstraint(Sketcher.Constraint("Vertical", 51, 2, 54, 2))
sketch2.addConstraint(Sketcher.Constraint("Vertical", 53, 2, 56, 2))
sketch2.addConstraint(Sketcher.Constraint("Vertical", 55, 2, 58, 2))
sketch2.addConstraint(Sketcher.Constraint("Vertical", 57, 2, 60, 2))
sketch2.addConstraint(Sketcher.Constraint("Vertical", 59, 2, 62, 2))
sketch2.addConstraint(Sketcher.Constraint("Equal", 0, 16))
sketch2.addConstraint(Sketcher.Constraint("Equal", 16, 32))
sketch2.addConstraint(Sketcher.Constraint("Equal", 30, 34))
sketch2.addConstraint(Sketcher.Constraint("Equal", 32, 48))
sketch2.addConstraint(Sketcher.Constraint("Equal", 3, 7))
sketch2.addConstraint(Sketcher.Constraint("Equal", 5, 9))
sketch2.addConstraint(Sketcher.Constraint("Equal", 7, 11))
sketch2.addConstraint(Sketcher.Constraint("Equal", 9, 13))
sketch2.addConstraint(Sketcher.Constraint("Equal", 17, 19))
sketch2.addConstraint(Sketcher.Constraint("Equal", 19, 21))
sketch2.addConstraint(Sketcher.Constraint("Equal", 21, 23))
sketch2.addConstraint(Sketcher.Constraint("Equal", 23, 25))
sketch2.addConstraint(Sketcher.Constraint("Equal", 25, 27))
sketch2.addConstraint(Sketcher.Constraint("Equal", 27, 29))
sketch2.addConstraint(Sketcher.Constraint("Equal", 29, 31))
sketch2.addConstraint(Sketcher.Constraint("DistanceY", 17, 2, 17, 1, Q("0.5 in")))
sketch2.addConstraint(Sketcher.Constraint("DistanceX", -1, 1, 16, 2, Q("3 in")))
sketch2.addConstraint(Sketcher.Constraint("DistanceY", 3, 1, 3, 2, Q("0.51 in")))
sketch2.addConstraint(Sketcher.Constraint("DistanceY", 5, 1, 5, 2, Q("0.49 in")))
sketch2.addConstraint(Sketcher.Constraint("DistanceX", 0, 2, 0, 1, Q("0.005 in")))
sketch2.addConstraint(Sketcher.Constraint("DistanceX", 2, 2, 2, 1, Q("0.098 in")))
sketch2.addConstraint(Sketcher.Constraint("DistanceY", 1, 1, 1, 2, Q("0.495 in")))
pocket1 = body.newObject("PartDesign::Pocket", "Pocket")
pocket1.Profile = sketch2
pocket1.Type = "ThroughAll"
pocket1.Reversed = True

doc.recompute()
